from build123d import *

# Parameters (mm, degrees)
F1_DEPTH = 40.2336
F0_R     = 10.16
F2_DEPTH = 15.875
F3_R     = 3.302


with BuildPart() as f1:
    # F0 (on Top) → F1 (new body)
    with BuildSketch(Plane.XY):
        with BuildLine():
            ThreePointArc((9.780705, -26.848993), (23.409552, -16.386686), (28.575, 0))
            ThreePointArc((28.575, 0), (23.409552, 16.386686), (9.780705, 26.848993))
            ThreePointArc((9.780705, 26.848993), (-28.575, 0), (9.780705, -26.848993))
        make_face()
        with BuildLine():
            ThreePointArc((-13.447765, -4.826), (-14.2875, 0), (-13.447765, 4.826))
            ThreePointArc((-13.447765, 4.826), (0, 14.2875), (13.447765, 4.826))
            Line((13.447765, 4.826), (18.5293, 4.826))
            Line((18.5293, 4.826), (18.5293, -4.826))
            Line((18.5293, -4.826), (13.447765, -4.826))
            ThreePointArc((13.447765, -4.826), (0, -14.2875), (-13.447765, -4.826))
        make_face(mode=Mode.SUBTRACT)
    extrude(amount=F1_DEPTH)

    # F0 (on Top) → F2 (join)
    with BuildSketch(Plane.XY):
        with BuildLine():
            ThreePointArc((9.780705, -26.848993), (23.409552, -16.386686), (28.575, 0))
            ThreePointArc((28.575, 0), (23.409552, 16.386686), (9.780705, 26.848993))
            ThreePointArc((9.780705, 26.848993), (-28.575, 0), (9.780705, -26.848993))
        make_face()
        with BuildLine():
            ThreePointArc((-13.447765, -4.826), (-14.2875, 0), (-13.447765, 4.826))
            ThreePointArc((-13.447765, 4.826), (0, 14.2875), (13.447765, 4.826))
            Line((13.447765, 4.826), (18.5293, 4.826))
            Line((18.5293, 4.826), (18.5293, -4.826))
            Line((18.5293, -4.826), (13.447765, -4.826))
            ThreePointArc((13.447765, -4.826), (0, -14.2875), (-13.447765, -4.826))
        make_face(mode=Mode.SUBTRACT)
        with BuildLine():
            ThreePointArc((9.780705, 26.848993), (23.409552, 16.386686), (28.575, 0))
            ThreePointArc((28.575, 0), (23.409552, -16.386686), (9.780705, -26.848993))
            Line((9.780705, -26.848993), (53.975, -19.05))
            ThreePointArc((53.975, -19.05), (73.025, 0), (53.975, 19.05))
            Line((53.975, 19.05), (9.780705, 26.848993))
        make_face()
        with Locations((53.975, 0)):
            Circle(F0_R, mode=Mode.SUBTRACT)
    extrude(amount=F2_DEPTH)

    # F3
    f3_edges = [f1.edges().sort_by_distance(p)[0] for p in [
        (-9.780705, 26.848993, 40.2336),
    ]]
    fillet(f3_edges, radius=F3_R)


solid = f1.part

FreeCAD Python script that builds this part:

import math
import FreeCAD as App
import Part
import Sketcher
from FreeCAD import Vector
Q = App.Units.Quantity


def edges_at(feature, points):
    """Names of the edges that pass closest to the given points."""
    edges = feature.Shape.Edges
    near = lambda p: min(range(len(edges)), key=lambda i: edges[i].distToShape(Part.Vertex(*p))[0])
    return sorted({f"Edge{near(p) + 1}" for p in points})

doc = App.newDocument("Part")
body = doc.addObject("PartDesign::Body", "Body")

# Sketch on XY plane
sketch1 = doc.addObject("Sketcher::SketchObject", "Sketch")
body.addObject(sketch1)
sketch1.AttachmentSupport = (doc.XY_Plane, [""])
sketch1.MapMode = "FlatFace"
sketch1.addGeometry(Part.ArcOfCircle(Part.Circle(Vector(0, 0, 0), Vector(0, 0, 1), 29), math.radians(-70), math.radians(0)), False)
sketch1.addGeometry(Part.ArcOfCircle(Part.Circle(Vector(0, 0, 0), Vector(0, 0, 1), 29), math.radians(0), math.radians(70)), False)
sketch1.addGeometry(Part.ArcOfCircle(Part.Circle(Vector(0, 0, 0), Vector(0, 0, 1), 29), math.radians(70), math.radians(290)), False)
sketch1.addGeometry(Part.ArcOfCircle(Part.Circle(Vector(0, 0, 0), Vector(0, 0, 1), 14), math.radians(-160), math.radians(-20)), False)
sketch1.addGeometry(Part.ArcOfCircle(Part.Circle(Vector(0, 0, 0), Vector(0, 0, 1), 14), math.radians(160), math.radians(200)), False)
sketch1.addGeometry(Part.ArcOfCircle(Part.Circle(Vector(0, 0, 0), Vector(0, 0, 1), 14), math.radians(20), math.radians(160)), False)
sketch1.addGeometry(Part.LineSegment(Vector(13, 5, 0), Vector(19, 5, 0)), False)
sketch1.addGeometry(Part.LineSegment(Vector(19, 5, 0), Vector(19, -5, 0)), False)
sketch1.addGeometry(Part.LineSegment(Vector(19, -5, 0), Vector(13, -5, 0)), False)
sketch1.addConstraint(Sketcher.Constraint("Tangent", 0, 2, 1, 1))
sketch1.addConstraint(Sketcher.Constraint("Tangent", 1, 2, 2, 1))
sketch1.addConstraint(Sketcher.Constraint("Tangent", 2, 2, 0, 1))
sketch1.addConstraint(Sketcher.Constraint("Tangent", 3, 1, 4, 2))
sketch1.addConstraint(Sketcher.Constraint("Tangent", 4, 1, 5, 2))
sketch1.addConstraint(Sketcher.Constraint("Coincident", 5, 1, 6, 1))
sketch1.addConstraint(Sketcher.Constraint("Coincident", 6, 2, 7, 1))
sketch1.addConstraint(Sketcher.Constraint("Coincident", 7, 2, 8, 1))
sketch1.addConstraint(Sketcher.Constraint("Coincident", 8, 2, 3, 2))
sketch1.addConstraint(Sketcher.Constraint("Horizontal", 6))
sketch1.addConstraint(Sketcher.Constraint("Vertical", 7))
sketch1.addConstraint(Sketcher.Constraint("Horizontal", 8))
sketch1.addConstraint(Sketcher.Constraint("Coincident", 0, 3, -1, 1))
sketch1.addConstraint(Sketcher.Constraint("Coincident", 3, 3, -1, 1))
sketch1.addConstraint(Sketcher.Constraint("Coincident", 5, 3, -1, 1))
sketch1.addConstraint(Sketcher.Constraint("PointOnObject", 0, 2, -1))
sketch1.addConstraint(Sketcher.Constraint("Horizontal", 4, 1, 5, 1))
sketch1.addConstraint(Sketcher.Constraint("Horizontal", 3, 1, 7, 2))
sketch1.addConstraint(Sketcher.Constraint("Vertical", 1, 2, 2, 2))
sketch1.addConstraint(Sketcher.Constraint("Vertical", 3, 1, 4, 1))
sketch1.addConstraint(Sketcher.Constraint("Radius", 0, Q("1.1250001 in")))
sketch1.addConstraint(Sketcher.Constraint("Radius", 3, Q("0.5625 in")))
sketch1.addConstraint(Sketcher.Constraint("DistanceY", 7, 2, 7, 1, Q("0.38 in")))
sketch1.addConstraint(Sketcher.Constraint("DistanceX", -1, 1, 6, 2, Q("0.7295 in")))
sketch1.addConstraint(Sketcher.Constraint("DistanceY", 0, 3, 1, 2, 26.848992))
pad1 = doc.addObject("PartDesign::Pad", "Pad")
body.addObject(pad1)
pad1.Profile = sketch1
pad1.Length = Q("1.584 in")

# Sketch on XY plane
sketch2 = doc.addObject("Sketcher::SketchObject", "Sketch001")
body.addObject(sketch2)
sketch2.AttachmentSupport = (doc.XY_Plane, [""])
sketch2.MapMode = "FlatFace"
sketch2.addGeometry(Part.ArcOfCircle(Part.Circle(Vector(0, 0, 0), Vector(0, 0, 1), 29), math.radians(70), math.radians(290)), False)
sketch2.addGeometry(Part.LineSegment(Vector(10, -27, 0), Vector(54, -19, 0)), False)
sketch2.addGeometry(Part.ArcOfCircle(Part.Circle(Vector(54, 0, 0), Vector(0, 0, 1), 19), math.radians(-90), math.radians(90)), False)
sketch2.addGeometry(Part.LineSegment(Vector(54, 19, 0), Vector(10, 27, 0)), False)
sketch2.addGeometry(Part.Circle(Vector(54, 0, 0), Vector(0, 0, 1), 10), False)
sketch2.addGeometry(Part.ArcOfCircle(Part.Circle(Vector(0, 0, 0), Vector(0, 0, 1), 14), math.radians(-160), math.radians(-20)), False)
sketch2.addGeometry(Part.ArcOfCircle(Part.Circle(Vector(0, 0, 0), Vector(0, 0, 1), 14), math.radians(160), math.radians(200)), False)
sketch2.addGeometry(Part.ArcOfCircle(Part.Circle(Vector(0, 0, 0), Vector(0, 0, 1), 14), math.radians(20), math.radians(160)), False)
sketch2.addGeometry(Part.LineSegment(Vector(13, 5, 0), Vector(19, 5, 0)), False)
sketch2.addGeometry(Part.LineSegment(Vector(19, 5, 0), Vector(19, -5, 0)), False)
sketch2.addGeometry(Part.LineSegment(Vector(19, -5, 0), Vector(13, -5, 0)), False)
sketch2.addConstraint(Sketcher.Constraint("Coincident", 0, 2, 1, 1))
sketch2.addConstraint(Sketcher.Constraint("Coincident", 1, 2, 2, 1))
sketch2.addConstraint(Sketcher.Constraint("Coincident", 2, 2, 3, 1))
sketch2.addConstraint(Sketcher.Constraint("Coincident", 3, 2, 0, 1))
sketch2.addConstraint(Sketcher.Constraint("Tangent", 5, 1, 6, 2))
sketch2.addConstraint(Sketcher.Constraint("Tangent", 6, 1, 7, 2))
sketch2.addConstraint(Sketcher.Constraint("Coincident", 7, 1, 8, 1))
sketch2.addConstraint(Sketcher.Constraint("Coincident", 8, 2, 9, 1))
sketch2.addConstraint(Sketcher.Constraint("Coincident", 9, 2, 10, 1))
sketch2.addConstraint(Sketcher.Constraint("Coincident", 10, 2, 5, 2))
sketch2.addConstraint(Sketcher.Constraint("Horizontal", 8))
sketch2.addConstraint(Sketcher.Constraint("Vertical", 9))
sketch2.addConstraint(Sketcher.Constraint("Horizontal", 10))
sketch2.addConstraint(Sketcher.Constraint("Coincident", 0, 3, -1, 1))
sketch2.addConstraint(Sketcher.Constraint("Coincident", 5, 3, -1, 1))
sketch2.addConstraint(Sketcher.Constraint("Coincident", 7, 3, -1, 1))
sketch2.addConstraint(Sketcher.Constraint("Coincident", 4, 3, 2, 3))
sketch2.addConstraint(Sketcher.Constraint("Symmetric", 1, 2, 2, 2, -1))
sketch2.addConstraint(Sketcher.Constraint("Horizontal", 6, 1, 7, 1))
sketch2.addConstraint(Sketcher.Constraint("Horizontal", 5, 1, 9, 2))
sketch2.addConstraint(Sketcher.Constraint("Vertical", 4, 3, 1, 2))
sketch2.addConstraint(Sketcher.Constraint("Vertical", 0, 2, 3, 2))
sketch2.addConstraint(Sketcher.Constraint("Vertical", 5, 1, 6, 1))
sketch2.addConstraint(Sketcher.Constraint("Diameter", 4, Q("0.8 in")))
sketch2.addConstraint(Sketcher.Constraint("Radius", 2, Q("0.75 in")))
sketch2.addConstraint(Sketcher.Constraint("Radius", 0, Q("1.125 in")))
sketch2.addConstraint(Sketcher.Constraint("Radius", 5, Q("0.5625 in")))
sketch2.addConstraint(Sketcher.Constraint("DistanceY", 9, 2, 9, 1, Q("0.38 in")))
sketch2.addConstraint(Sketcher.Constraint("DistanceX", -1, 1, 2, 3, Q("2.125 in")))
sketch2.addConstraint(Sketcher.Constraint("DistanceX", -1, 1, 8, 2, Q("0.7295 in")))
sketch2.addConstraint(Sketcher.Constraint("DistanceX", 5, 1, 0, 2, 23.22847))
pad2 = doc.addObject("PartDesign::Pad", "Pad001")
body.addObject(pad2)
pad2.Profile = sketch2
pad2.Length = Q("0.625 in")
doc.recompute()

fillet = doc.addObject("PartDesign::Fillet", "Fillet")
body.addObject(fillet)
fillet.Base = (pad2, edges_at(pad2, [(-28.575, 0, 40.234)]))
fillet.Radius = Q("0.13 in")

doc.recompute()
